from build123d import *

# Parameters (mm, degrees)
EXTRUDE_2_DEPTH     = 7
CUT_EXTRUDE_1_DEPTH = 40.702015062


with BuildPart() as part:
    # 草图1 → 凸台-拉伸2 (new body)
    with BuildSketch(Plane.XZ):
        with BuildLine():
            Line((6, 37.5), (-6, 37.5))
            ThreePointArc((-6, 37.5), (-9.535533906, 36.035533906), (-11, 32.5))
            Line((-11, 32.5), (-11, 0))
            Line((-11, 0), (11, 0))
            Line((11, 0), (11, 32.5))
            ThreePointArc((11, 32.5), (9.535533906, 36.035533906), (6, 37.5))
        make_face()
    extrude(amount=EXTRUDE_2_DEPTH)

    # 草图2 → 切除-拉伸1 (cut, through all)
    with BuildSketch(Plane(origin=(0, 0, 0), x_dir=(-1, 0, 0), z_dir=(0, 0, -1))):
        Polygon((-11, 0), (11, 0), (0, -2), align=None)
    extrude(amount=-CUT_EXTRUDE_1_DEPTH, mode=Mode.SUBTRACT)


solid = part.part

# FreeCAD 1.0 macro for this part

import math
import FreeCAD as App
import Part
import Sketcher

V = App.Vector
Q = App.Units.Quantity


def add_polygon(sketch, points):
    """Adds a closed chain of lines whose ends are joined by coincident constraints."""
    first, n = sketch.GeometryCount, len(points)
    for a, b in zip(points, points[1:] + points[:1]):
        sketch.addGeometry(Part.LineSegment(App.Vector(*a, 0), App.Vector(*b, 0)), False)
    for i in range(n):
        sketch.addConstraint(Sketcher.Constraint("Coincident", first + i, 2, first + (i + 1) % n, 1))

doc = App.newDocument("Part")
params = doc.addObject("Spreadsheet::Sheet", "Params")
for row, (alias, value) in enumerate([
    ("sketch1_radius", "5 mm"),
    ("sketch1_width", "12 mm"),
    ("sketch1_height", "32.5 mm"),
    ("pad1_length", "7 mm"),
    ("sketch2_width", "22 mm"),
], start=1):
    params.set(f"A{row}", alias)
    params.set(f"B{row}", "=" + value)
    params.setAlias(f"B{row}", alias)

body = doc.addObject("PartDesign::Body", "Body")

sketch1 = doc.addObject("Sketcher::SketchObject", "Sketch")
body.addObject(sketch1)
sketch1.AttachmentSupport = (doc.XZ_Plane, [""])
sketch1.MapMode = "FlatFace"
sketch1.addGeometry(Part.LineSegment(V(6, 37.5, 0), V(-6, 37.5, 0)), False)
sketch1.addGeometry(Part.ArcOfCircle(Part.Circle(V(-6, 32.5, 0), V(0, 0, 1), 5), math.radians(90), math.radians(180)), False)
sketch1.addGeometry(Part.LineSegment(V(-11, 32.5, 0), V(-11, 0, 0)), False)
sketch1.addGeometry(Part.LineSegment(V(-11, 0, 0), V(11, 0, 0)), False)
sketch1.addGeometry(Part.LineSegment(V(11, 0, 0), V(11, 32.5, 0)), False)
sketch1.addGeometry(Part.ArcOfCircle(Part.Circle(V(6, 32.5, 0), V(0, 0, 1), 5), math.radians(0), math.radians(90)), False)
sketch1.addConstraint(Sketcher.Constraint("Tangent", 0, 2, 1, 1))
sketch1.addConstraint(Sketcher.Constraint("Tangent", 1, 2, 2, 1))
sketch1.addConstraint(Sketcher.Constraint("Coincident", 2, 2, 3, 1))
sketch1.addConstraint(Sketcher.Constraint("Coincident", 3, 2, 4, 1))
sketch1.addConstraint(Sketcher.Constraint("Tangent", 4, 2, 5, 1))
sketch1.addConstraint(Sketcher.Constraint("Tangent", 5, 2, 0, 1))
sketch1.addConstraint(Sketcher.Constraint("Horizontal", 0))
sketch1.addConstraint(Sketcher.Constraint("Vertical", 2))
sketch1.addConstraint(Sketcher.Constraint("Horizontal", 3))
sketch1.addConstraint(Sketcher.Constraint("Vertical", 4))
sketch1.addConstraint(Sketcher.Constraint("Equal", 1, 5))
sketch1.addConstraint(Sketcher.Constraint("Symmetric", 2, 2, 3, 2, -1, 1))
sketch1.addConstraint(Sketcher.Constraint("Radius", 1, Q("5 mm")))
sketch1.addConstraint(Sketcher.Constraint("DistanceX", 0, 2, 0, 1, Q("12 mm")))
sketch1.addConstraint(Sketcher.Constraint("DistanceY", 2, 2, 2, 1, Q("32.5 mm")))
sketch1.setExpression("Constraints[12]", "Params.sketch1_radius")
sketch1.setExpression("Constraints[13]", "Params.sketch1_width")
sketch1.setExpression("Constraints[14]", "Params.sketch1_height")
pad1 = doc.addObject("PartDesign::Pad", "Pad")
body.addObject(pad1)
pad1.Profile = sketch1
pad1.setExpression("Length", "Params.pad1_length")

sketch2 = doc.addObject("Sketcher::SketchObject", "Sketch001")
body.addObject(sketch2)
sketch2.AttachmentSupport = (doc.XY_Plane, [""])
sketch2.MapMode = "FlatFace"
add_polygon(sketch2, [(-11, 0), (11, 0), (0, -2)])
sketch2.addConstraint(Sketcher.Constraint("Horizontal", 0))
sketch2.addConstraint(Sketcher.Constraint("Symmetric", 0, 2, 2, 2, -1, 1))
sketch2.addConstraint(Sketcher.Constraint("PointOnObject", 1, 2, -2))
sketch2.addConstraint(Sketcher.Constraint("DistanceX", 0, 1, 0, 2, Q("22 mm")))
sketch2.addConstraint(Sketcher.Constraint("DistanceY", 1, 2, -1, 1, Q("2 mm")))
sketch2.setExpression("Constraints[6]", "Params.sketch2_width")
pocket1 = doc.addObject("PartDesign::Pocket", "Pocket")
body.addObject(pocket1)
pocket1.Profile = sketch2
pocket1.Type = "ThroughAll"
pocket1.Reversed = True

doc.recompute()
